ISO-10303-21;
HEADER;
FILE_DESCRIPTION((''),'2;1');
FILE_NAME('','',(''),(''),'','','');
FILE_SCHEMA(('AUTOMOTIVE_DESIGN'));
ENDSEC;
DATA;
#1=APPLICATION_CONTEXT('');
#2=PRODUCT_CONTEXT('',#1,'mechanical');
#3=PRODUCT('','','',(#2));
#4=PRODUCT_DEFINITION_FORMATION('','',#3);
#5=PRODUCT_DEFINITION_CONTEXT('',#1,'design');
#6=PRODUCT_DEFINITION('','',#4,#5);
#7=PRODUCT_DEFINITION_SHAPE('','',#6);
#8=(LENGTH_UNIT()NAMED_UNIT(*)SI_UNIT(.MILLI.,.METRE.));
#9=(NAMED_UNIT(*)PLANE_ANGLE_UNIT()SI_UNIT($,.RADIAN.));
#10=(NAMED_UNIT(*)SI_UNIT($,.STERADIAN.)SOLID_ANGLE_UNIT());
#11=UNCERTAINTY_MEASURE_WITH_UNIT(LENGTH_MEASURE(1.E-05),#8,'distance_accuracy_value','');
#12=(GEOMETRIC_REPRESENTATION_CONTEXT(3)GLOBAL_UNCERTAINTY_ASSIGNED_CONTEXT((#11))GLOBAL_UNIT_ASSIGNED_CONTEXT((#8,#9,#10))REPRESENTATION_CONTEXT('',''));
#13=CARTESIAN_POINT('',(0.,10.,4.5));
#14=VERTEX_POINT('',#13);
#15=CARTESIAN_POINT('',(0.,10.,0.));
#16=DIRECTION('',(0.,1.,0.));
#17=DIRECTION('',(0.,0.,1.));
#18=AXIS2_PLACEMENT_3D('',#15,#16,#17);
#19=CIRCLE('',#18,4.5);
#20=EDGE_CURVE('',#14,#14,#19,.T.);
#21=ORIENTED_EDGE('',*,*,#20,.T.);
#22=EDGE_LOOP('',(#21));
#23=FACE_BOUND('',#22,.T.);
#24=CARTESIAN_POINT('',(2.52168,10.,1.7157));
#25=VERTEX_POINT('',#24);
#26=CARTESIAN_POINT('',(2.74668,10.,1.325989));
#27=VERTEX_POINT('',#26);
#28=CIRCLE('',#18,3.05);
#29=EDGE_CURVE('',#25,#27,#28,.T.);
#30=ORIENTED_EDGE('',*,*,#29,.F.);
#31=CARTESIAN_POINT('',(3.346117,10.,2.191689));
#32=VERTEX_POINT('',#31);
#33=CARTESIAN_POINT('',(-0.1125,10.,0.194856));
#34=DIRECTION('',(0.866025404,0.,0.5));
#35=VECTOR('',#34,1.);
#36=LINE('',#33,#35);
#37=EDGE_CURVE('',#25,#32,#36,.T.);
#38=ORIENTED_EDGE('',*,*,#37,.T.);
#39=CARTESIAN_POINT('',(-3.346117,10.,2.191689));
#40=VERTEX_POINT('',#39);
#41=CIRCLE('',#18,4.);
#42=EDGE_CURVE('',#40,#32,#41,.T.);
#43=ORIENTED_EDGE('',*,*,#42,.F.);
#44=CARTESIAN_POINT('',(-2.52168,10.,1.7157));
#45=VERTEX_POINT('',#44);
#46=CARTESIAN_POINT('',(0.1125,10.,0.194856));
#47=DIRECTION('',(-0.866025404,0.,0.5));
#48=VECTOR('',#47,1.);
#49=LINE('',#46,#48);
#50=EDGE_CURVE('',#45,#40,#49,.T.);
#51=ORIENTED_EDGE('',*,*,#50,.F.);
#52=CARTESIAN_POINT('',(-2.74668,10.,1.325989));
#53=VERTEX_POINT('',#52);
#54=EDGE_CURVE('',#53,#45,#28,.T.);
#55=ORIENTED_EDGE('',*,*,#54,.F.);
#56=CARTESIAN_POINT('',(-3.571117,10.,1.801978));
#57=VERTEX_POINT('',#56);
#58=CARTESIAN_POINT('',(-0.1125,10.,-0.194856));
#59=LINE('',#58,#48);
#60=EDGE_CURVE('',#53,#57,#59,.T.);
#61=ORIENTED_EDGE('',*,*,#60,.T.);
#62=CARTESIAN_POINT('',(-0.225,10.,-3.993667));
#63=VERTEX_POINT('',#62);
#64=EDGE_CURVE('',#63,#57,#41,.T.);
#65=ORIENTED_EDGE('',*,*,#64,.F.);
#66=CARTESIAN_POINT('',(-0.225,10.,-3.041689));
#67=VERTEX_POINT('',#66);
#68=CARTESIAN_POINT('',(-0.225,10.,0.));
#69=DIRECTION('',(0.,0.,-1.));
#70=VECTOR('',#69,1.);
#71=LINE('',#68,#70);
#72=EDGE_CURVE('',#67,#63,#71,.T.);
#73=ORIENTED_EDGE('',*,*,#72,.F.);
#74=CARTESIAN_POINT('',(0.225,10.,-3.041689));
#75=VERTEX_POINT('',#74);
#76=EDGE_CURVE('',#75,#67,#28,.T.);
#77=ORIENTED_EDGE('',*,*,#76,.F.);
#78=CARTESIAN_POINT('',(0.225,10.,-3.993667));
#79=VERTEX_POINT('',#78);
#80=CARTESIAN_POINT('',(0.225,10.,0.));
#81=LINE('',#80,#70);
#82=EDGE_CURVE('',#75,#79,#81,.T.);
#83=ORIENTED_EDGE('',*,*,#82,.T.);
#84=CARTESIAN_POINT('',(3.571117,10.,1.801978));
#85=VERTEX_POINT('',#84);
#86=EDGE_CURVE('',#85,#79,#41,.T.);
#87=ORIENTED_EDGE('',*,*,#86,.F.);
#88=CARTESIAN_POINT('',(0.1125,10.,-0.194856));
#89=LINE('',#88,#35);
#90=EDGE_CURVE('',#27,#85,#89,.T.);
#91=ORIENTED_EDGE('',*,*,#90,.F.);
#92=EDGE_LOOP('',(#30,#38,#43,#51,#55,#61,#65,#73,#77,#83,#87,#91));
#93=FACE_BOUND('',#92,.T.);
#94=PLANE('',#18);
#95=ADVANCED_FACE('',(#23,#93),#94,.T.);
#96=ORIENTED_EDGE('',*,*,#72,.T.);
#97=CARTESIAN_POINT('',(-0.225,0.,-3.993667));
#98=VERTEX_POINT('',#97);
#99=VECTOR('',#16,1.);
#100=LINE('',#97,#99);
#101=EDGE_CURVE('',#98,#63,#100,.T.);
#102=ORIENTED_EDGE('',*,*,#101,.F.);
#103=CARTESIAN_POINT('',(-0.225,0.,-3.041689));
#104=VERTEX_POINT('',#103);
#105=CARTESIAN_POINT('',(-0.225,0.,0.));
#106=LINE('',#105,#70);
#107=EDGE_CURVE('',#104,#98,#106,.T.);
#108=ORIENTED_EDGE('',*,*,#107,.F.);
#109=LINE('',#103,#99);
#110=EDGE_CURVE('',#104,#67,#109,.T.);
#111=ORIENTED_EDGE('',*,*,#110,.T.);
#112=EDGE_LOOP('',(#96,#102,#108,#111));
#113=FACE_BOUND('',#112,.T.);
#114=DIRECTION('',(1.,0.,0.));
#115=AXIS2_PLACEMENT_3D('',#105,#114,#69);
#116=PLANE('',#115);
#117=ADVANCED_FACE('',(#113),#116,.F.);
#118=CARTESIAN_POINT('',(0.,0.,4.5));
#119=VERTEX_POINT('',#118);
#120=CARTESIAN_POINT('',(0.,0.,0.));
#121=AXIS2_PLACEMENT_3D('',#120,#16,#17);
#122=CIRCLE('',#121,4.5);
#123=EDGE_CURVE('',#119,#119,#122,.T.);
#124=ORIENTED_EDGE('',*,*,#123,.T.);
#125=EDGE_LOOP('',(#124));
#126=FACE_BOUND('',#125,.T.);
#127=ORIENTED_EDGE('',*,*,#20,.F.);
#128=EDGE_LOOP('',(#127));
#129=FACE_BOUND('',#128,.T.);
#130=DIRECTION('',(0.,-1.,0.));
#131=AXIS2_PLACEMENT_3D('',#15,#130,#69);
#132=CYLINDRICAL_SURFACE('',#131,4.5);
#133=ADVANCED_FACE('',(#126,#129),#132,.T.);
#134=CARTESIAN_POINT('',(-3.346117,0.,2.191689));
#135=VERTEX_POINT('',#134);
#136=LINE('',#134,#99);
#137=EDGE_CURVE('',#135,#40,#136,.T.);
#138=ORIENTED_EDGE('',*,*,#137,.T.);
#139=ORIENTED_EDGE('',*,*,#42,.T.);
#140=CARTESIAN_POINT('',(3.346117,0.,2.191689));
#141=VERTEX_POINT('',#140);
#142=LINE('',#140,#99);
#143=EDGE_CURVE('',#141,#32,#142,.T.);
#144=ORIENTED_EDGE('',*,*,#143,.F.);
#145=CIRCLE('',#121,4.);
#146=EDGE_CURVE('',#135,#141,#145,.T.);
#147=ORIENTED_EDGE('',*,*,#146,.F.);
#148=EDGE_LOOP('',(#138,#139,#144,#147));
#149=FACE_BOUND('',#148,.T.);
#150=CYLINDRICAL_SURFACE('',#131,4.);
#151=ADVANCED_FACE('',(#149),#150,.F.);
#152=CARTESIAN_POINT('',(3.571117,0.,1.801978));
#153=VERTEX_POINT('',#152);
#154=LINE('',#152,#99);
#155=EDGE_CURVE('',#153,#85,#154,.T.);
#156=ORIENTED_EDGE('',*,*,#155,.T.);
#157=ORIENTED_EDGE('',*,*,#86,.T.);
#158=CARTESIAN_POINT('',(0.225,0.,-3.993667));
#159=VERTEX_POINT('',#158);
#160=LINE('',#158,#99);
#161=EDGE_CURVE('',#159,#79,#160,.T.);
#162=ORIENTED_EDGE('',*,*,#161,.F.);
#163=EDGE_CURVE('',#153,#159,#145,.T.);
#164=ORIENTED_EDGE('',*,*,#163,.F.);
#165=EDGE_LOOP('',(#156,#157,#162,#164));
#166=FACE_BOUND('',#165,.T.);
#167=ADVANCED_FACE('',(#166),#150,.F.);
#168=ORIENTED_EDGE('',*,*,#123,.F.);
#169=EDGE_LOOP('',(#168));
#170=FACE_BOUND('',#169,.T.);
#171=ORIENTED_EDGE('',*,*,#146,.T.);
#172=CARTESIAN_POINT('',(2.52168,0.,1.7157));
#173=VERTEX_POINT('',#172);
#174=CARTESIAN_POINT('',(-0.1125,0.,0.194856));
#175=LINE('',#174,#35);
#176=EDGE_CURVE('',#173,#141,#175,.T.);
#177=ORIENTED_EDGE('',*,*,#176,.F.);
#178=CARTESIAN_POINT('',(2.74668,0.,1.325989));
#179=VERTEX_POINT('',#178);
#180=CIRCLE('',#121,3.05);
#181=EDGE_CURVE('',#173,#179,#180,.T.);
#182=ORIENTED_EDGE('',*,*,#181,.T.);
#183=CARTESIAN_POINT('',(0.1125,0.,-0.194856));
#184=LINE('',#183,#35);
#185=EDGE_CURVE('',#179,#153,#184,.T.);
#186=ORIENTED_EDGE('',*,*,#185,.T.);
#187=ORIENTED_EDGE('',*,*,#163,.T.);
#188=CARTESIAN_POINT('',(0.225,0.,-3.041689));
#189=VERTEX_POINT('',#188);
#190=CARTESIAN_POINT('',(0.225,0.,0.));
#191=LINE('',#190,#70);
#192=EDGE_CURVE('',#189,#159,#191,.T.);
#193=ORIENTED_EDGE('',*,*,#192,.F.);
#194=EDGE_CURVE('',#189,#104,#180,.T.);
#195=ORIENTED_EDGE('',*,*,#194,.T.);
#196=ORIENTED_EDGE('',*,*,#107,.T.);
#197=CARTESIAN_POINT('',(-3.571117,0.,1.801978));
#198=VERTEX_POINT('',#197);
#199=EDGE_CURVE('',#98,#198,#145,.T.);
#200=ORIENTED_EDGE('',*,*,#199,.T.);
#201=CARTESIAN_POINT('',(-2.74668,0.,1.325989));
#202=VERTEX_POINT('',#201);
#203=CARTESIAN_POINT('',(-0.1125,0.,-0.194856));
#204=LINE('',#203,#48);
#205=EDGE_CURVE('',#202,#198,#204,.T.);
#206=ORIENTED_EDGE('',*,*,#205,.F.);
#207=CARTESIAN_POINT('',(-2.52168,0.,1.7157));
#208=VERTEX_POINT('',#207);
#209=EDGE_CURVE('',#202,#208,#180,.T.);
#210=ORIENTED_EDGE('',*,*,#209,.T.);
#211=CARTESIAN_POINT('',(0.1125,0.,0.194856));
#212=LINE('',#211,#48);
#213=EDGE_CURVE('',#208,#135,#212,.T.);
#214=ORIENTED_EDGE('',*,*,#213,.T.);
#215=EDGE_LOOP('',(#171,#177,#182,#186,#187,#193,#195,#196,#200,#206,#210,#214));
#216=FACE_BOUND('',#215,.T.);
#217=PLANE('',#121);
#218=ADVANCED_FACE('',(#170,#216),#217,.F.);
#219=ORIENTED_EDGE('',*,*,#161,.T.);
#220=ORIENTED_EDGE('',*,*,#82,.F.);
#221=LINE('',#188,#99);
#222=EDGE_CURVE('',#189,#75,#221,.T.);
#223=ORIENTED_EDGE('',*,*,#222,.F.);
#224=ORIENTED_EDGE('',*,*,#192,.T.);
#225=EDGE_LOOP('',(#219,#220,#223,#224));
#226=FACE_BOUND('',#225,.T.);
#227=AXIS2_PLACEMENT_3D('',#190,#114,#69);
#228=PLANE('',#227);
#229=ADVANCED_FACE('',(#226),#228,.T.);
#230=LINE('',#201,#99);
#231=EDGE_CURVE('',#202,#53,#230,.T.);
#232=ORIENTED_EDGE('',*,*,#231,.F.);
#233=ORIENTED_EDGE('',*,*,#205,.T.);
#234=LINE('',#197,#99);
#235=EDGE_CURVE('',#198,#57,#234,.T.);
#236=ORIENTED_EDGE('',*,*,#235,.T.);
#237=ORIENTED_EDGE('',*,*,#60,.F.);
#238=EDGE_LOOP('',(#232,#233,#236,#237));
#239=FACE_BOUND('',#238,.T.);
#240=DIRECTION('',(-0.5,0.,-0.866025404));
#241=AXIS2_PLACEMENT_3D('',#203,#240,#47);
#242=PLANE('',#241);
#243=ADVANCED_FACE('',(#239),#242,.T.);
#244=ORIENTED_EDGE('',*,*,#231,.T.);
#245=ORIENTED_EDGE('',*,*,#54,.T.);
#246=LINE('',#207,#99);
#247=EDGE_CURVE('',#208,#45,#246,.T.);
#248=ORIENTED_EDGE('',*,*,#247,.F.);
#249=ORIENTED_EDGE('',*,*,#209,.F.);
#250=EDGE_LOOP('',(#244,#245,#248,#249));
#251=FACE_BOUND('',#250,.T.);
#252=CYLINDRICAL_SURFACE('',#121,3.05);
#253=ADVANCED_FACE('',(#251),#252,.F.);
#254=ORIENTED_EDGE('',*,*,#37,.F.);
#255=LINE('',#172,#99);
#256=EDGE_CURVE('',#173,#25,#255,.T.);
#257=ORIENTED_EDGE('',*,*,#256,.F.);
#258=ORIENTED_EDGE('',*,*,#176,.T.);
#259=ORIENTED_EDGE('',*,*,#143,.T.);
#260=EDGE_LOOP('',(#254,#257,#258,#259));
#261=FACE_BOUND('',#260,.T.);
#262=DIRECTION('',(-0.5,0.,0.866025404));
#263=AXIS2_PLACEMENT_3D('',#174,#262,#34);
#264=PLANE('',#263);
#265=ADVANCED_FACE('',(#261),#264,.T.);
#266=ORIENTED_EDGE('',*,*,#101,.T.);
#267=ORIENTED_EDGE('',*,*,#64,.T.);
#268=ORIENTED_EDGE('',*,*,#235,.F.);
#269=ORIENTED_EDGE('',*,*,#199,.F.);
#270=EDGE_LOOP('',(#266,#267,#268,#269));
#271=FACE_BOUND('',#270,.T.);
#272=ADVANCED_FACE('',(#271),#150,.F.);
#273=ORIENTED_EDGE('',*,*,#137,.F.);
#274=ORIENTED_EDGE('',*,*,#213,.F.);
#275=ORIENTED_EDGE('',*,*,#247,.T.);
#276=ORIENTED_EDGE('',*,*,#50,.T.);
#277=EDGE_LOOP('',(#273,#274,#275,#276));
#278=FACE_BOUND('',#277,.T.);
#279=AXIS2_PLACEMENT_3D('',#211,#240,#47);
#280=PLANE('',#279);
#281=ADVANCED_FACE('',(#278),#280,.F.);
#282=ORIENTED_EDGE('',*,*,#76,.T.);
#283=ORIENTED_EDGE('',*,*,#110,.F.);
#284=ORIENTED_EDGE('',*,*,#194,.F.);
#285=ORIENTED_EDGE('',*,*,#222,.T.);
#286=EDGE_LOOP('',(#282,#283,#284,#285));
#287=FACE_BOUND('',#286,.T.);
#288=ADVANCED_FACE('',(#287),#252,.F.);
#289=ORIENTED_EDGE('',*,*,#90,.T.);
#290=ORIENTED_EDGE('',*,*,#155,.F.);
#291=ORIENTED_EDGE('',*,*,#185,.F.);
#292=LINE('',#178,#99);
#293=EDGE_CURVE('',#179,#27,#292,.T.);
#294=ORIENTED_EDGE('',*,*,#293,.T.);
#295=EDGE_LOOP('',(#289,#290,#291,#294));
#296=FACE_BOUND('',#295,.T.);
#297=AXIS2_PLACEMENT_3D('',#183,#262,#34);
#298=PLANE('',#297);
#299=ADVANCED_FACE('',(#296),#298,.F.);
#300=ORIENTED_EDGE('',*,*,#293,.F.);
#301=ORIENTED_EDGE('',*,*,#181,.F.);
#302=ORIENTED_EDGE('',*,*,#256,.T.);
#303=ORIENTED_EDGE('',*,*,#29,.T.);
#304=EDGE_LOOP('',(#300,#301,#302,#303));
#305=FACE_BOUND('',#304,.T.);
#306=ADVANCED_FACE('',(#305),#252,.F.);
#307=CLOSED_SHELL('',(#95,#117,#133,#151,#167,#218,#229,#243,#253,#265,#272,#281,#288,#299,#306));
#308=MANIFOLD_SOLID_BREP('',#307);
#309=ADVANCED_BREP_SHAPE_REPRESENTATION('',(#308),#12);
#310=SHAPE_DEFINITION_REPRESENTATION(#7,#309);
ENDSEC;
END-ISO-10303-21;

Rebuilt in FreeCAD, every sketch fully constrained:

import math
import FreeCAD as App
import Part
import Sketcher
Q = App.Units.Quantity

doc = App.newDocument("Part")
body = doc.addObject("PartDesign::Body", "Body")

# Sketch on XZ plane
sketch1 = body.newObject("Sketcher::SketchObject", "Sketch")
sketch1.AttachmentSupport = (doc.getObject("XZ_Plane"), [""])
sketch1.MapMode = "FlatFace"
sketch1.addGeometry([
    Part.Circle(App.Vector(0, 0, 0), App.Vector(0, 0, 1), 4.5),
    Part.Circle(App.Vector(0, 0, 0), App.Vector(0, 0, 1), 4),
], False)
sketch1.addConstraint([
    Sketcher.Constraint("Coincident", 0, 3, -1, 1),
    Sketcher.Constraint("Coincident", 1, 3, -1, 1),
    Sketcher.Constraint("Diameter", 0, Q("9 mm")),
    Sketcher.Constraint("Diameter", 1, Q("8 mm")),
])
pad1 = body.newObject("PartDesign::Pad", "Pad")
pad1.Profile = sketch1
pad1.Length = 10
pad1.Reversed = True

# Sketch on XZ plane
sketch2 = body.newObject("Sketcher::SketchObject", "Sketch001")
sketch2.AttachmentSupport = (doc.getObject("XZ_Plane"), [""])
sketch2.MapMode = "FlatFace"
sketch2.addGeometry([
    Part.ArcOfCircle(Part.Circle(App.Vector(0, 0, 0), App.Vector(0, 0, 1), 3.05), math.radians(-94.230581), math.radians(-85.769419)),  # 0
    Part.LineSegment(App.Vector(0.225, -3.041689, 0), App.Vector(0.225, -3.993667, 0)),  # 1
    Part.ArcOfCircle(Part.Circle(App.Vector(0, 0, 0), App.Vector(0, 0, 1), 4), math.radians(-93.22459), math.radians(-86.77541)),  # 2
    Part.LineSegment(App.Vector(-0.225, -3.993667, 0), App.Vector(-0.225, -3.041689, 0)),  # 3
    Part.LineSegment(App.Vector(3.571117, 1.801978, 0), App.Vector(2.74668, 1.325989, 0)),  # 4
    Part.ArcOfCircle(Part.Circle(App.Vector(0, 0, 0), App.Vector(0, 0, 1), 3.05), math.radians(25.769419), math.radians(34.230581)),  # 5
    Part.LineSegment(App.Vector(2.52168, 1.7157, 0), App.Vector(3.346117, 2.191689, 0)),  # 6
    Part.ArcOfCircle(Part.Circle(App.Vector(0, 0, 0), App.Vector(0, 0, 1), 4), math.radians(26.77541), math.radians(33.22459)),  # 7
    Part.LineSegment(App.Vector(-3.346117, 2.191689, 0), App.Vector(-2.52168, 1.7157, 0)),  # 8
    Part.ArcOfCircle(Part.Circle(App.Vector(0, 0, 0), App.Vector(0, 0, 1), 3.05), math.radians(145.769419), math.radians(154.230581)),  # 9
    Part.LineSegment(App.Vector(-2.74668, 1.325989, 0), App.Vector(-3.571117, 1.801978, 0)),  # 10
    Part.ArcOfCircle(Part.Circle(App.Vector(0, 0, 0), App.Vector(0, 0, 1), 4), math.radians(146.77541), math.radians(153.22459)),  # 11
], False)
sketch2.addConstraint([
    Sketcher.Constraint("Coincident", 0, 2, 1, 1),
    Sketcher.Constraint("Coincident", 1, 2, 2, 2),
    Sketcher.Constraint("Coincident", 2, 1, 3, 1),
    Sketcher.Constraint("Coincident", 3, 2, 0, 1),
    Sketcher.Constraint("Coincident", 4, 2, 5, 1),
    Sketcher.Constraint("Coincident", 5, 2, 6, 1),
    Sketcher.Constraint("Coincident", 6, 2, 7, 2),
    Sketcher.Constraint("Coincident", 7, 1, 4, 1),
    Sketcher.Constraint("Coincident", 8, 2, 9, 1),
    Sketcher.Constraint("Coincident", 9, 2, 10, 1),
    Sketcher.Constraint("Coincident", 10, 2, 11, 2),
    Sketcher.Constraint("Coincident", 11, 1, 8, 1),
    Sketcher.Constraint("Vertical", 1),
    Sketcher.Constraint("Vertical", 3),
    Sketcher.Constraint("Coincident", 0, 3, -1, 1),
    Sketcher.Constraint("Coincident", 2, 3, -1, 1),
    Sketcher.Constraint("Coincident", 5, 3, -1, 1),
    Sketcher.Constraint("Coincident", 7, 3, -1, 1),
    Sketcher.Constraint("Coincident", 9, 3, -1, 1),
    Sketcher.Constraint("Coincident", 11, 3, -1, 1),
    Sketcher.Constraint("Equal", 0, 5),
    Sketcher.Constraint("Equal", 2, 7),
    Sketcher.Constraint("Equal", 5, 9),
    Sketcher.Constraint("Equal", 7, 11),
    Sketcher.Constraint("Parallel", 4, 6),
    Sketcher.Constraint("Parallel", 8, 10),
    Sketcher.Constraint("Horizontal", 1, 2, 2, 1),
    Sketcher.Constraint("Horizontal", 5, 2, 8, 2),
    Sketcher.Constraint("Horizontal", 4, 2, 9, 2),
    Sketcher.Constraint("Horizontal", 7, 1, 10, 2),
    Sketcher.Constraint("Equal", 4, 6),
    Sketcher.Constraint("Radius", 2, Q("4 mm")),
    Sketcher.Constraint("Angle", 4, Q("-150 deg")),
    Sketcher.Constraint("Radius", 0, Q("3.05 mm")),
    Sketcher.Constraint("DistanceX", 2, 1, 1, 2, Q("0.45 mm")),
    Sketcher.Constraint("DistanceX", 5, 2, 4, 2, Q("0.225 mm")),
])
pad2 = body.newObject("PartDesign::Pad", "Pad001")
pad2.Profile = sketch2
pad2.Length = 10
pad2.Reversed = True

doc.recompute()
